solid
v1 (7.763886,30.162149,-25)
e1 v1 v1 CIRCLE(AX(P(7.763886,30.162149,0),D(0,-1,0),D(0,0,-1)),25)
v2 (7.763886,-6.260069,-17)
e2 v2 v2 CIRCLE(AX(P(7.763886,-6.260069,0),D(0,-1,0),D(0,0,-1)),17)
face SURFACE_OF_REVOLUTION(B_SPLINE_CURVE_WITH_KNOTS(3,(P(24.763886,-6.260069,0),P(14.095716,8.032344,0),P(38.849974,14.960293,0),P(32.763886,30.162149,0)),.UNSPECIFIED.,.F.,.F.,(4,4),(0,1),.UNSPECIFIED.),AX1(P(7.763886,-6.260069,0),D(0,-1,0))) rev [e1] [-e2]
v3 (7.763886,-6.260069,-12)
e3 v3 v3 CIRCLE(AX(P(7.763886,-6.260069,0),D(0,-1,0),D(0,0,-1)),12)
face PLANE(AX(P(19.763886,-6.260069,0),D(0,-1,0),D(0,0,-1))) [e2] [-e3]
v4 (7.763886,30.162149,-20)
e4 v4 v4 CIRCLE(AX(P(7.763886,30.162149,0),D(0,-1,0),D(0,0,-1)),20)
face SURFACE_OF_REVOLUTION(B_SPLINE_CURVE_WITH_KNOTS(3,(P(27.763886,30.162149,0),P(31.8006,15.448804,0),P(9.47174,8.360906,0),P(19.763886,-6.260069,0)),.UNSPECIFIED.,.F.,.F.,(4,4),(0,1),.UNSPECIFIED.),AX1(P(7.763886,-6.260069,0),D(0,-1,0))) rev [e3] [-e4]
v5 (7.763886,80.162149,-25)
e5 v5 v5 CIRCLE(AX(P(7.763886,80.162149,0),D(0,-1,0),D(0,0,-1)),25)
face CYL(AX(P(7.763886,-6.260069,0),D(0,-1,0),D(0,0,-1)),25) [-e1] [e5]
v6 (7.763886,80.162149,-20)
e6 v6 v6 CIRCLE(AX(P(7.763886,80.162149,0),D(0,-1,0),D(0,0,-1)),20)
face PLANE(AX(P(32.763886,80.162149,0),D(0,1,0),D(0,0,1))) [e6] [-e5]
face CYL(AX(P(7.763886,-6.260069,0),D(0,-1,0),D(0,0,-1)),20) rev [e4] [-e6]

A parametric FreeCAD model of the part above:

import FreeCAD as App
import Part
import Sketcher

V = App.Vector

doc = App.newDocument("Part")
body = doc.addObject("PartDesign::Body", "Body")

# Sketch on XY plane
sketch1 = body.newObject("Sketcher::SketchObject", "Sketch")
sketch1.AttachmentSupport = (doc.getObject("XY_Plane"), [""])
sketch1.MapMode = "FlatFace"
sketch1.addGeometry([
    Part.LineSegment(V(32.763886, 30.162149, 0), V(32.763886, 80.162149, 0)),  # 0
    Part.LineSegment(V(32.763886, 80.162149, 0), V(27.763886, 80.162149, 0)),  # 1
    Part.LineSegment(V(27.763886, 80.162149, 0), V(27.763886, 30.162149, 0)),  # 2
    Part.BSplineCurve([V(27.763886, 30.162149, 0), V(31.8006, 15.448804, 0), V(9.47174, 8.360906, 0), V(19.763886, -6.260069, 0)], [4, 4], [0, 1], False, 3, [1, 1, 1, 1], False),  # 3
    Part.LineSegment(V(19.763886, -6.260069, 0), V(24.763886, -6.260069, 0)),  # 4
    Part.BSplineCurve([V(24.763886, -6.260069, 0), V(14.095716, 8.032344, 0), V(38.849974, 14.960293, 0), V(32.763886, 30.162149, 0)], [4, 4], [0, 1], False, 3, [1, 1, 1, 1], False),  # 5
], False)
sketch1.addGeometry(Part.LineSegment(V(7.763886, -6.260069, 0), V(7.763886, 80.162149, 0)), True)  # axis
sketch1.addConstraint([
    Sketcher.Constraint("Block", 3),
    Sketcher.Constraint("Block", 5),
    Sketcher.Constraint("Coincident", 0, 2, 1, 1),
    Sketcher.Constraint("Coincident", 1, 2, 2, 1),
    Sketcher.Constraint("Coincident", 2, 2, 3, 1),
    Sketcher.Constraint("Coincident", 3, 2, 4, 1),
    Sketcher.Constraint("Coincident", 4, 2, 5, 1),
    Sketcher.Constraint("Coincident", 5, 2, 0, 1),
    Sketcher.Constraint("Vertical", 0),
    Sketcher.Constraint("Horizontal", 1),
    Sketcher.Constraint("Vertical", 2),
    Sketcher.Constraint("Vertical", 6),
    Sketcher.Constraint("Horizontal", 4, 2, 6, 1),
    Sketcher.Constraint("Horizontal", 1, 2, 6, 2),
    Sketcher.Constraint("DistanceY", 0, 1, 0, 2, 50.0),
    Sketcher.Constraint("DistanceX", 6, 1, 4, 2, 17.0),
])
revolution = body.newObject("PartDesign::Revolution", "Revolution")
revolution.Profile = sketch1
revolution.ReferenceAxis = (sketch1, ["Axis0"])
revolution.Angle = 360

doc.recompute()
